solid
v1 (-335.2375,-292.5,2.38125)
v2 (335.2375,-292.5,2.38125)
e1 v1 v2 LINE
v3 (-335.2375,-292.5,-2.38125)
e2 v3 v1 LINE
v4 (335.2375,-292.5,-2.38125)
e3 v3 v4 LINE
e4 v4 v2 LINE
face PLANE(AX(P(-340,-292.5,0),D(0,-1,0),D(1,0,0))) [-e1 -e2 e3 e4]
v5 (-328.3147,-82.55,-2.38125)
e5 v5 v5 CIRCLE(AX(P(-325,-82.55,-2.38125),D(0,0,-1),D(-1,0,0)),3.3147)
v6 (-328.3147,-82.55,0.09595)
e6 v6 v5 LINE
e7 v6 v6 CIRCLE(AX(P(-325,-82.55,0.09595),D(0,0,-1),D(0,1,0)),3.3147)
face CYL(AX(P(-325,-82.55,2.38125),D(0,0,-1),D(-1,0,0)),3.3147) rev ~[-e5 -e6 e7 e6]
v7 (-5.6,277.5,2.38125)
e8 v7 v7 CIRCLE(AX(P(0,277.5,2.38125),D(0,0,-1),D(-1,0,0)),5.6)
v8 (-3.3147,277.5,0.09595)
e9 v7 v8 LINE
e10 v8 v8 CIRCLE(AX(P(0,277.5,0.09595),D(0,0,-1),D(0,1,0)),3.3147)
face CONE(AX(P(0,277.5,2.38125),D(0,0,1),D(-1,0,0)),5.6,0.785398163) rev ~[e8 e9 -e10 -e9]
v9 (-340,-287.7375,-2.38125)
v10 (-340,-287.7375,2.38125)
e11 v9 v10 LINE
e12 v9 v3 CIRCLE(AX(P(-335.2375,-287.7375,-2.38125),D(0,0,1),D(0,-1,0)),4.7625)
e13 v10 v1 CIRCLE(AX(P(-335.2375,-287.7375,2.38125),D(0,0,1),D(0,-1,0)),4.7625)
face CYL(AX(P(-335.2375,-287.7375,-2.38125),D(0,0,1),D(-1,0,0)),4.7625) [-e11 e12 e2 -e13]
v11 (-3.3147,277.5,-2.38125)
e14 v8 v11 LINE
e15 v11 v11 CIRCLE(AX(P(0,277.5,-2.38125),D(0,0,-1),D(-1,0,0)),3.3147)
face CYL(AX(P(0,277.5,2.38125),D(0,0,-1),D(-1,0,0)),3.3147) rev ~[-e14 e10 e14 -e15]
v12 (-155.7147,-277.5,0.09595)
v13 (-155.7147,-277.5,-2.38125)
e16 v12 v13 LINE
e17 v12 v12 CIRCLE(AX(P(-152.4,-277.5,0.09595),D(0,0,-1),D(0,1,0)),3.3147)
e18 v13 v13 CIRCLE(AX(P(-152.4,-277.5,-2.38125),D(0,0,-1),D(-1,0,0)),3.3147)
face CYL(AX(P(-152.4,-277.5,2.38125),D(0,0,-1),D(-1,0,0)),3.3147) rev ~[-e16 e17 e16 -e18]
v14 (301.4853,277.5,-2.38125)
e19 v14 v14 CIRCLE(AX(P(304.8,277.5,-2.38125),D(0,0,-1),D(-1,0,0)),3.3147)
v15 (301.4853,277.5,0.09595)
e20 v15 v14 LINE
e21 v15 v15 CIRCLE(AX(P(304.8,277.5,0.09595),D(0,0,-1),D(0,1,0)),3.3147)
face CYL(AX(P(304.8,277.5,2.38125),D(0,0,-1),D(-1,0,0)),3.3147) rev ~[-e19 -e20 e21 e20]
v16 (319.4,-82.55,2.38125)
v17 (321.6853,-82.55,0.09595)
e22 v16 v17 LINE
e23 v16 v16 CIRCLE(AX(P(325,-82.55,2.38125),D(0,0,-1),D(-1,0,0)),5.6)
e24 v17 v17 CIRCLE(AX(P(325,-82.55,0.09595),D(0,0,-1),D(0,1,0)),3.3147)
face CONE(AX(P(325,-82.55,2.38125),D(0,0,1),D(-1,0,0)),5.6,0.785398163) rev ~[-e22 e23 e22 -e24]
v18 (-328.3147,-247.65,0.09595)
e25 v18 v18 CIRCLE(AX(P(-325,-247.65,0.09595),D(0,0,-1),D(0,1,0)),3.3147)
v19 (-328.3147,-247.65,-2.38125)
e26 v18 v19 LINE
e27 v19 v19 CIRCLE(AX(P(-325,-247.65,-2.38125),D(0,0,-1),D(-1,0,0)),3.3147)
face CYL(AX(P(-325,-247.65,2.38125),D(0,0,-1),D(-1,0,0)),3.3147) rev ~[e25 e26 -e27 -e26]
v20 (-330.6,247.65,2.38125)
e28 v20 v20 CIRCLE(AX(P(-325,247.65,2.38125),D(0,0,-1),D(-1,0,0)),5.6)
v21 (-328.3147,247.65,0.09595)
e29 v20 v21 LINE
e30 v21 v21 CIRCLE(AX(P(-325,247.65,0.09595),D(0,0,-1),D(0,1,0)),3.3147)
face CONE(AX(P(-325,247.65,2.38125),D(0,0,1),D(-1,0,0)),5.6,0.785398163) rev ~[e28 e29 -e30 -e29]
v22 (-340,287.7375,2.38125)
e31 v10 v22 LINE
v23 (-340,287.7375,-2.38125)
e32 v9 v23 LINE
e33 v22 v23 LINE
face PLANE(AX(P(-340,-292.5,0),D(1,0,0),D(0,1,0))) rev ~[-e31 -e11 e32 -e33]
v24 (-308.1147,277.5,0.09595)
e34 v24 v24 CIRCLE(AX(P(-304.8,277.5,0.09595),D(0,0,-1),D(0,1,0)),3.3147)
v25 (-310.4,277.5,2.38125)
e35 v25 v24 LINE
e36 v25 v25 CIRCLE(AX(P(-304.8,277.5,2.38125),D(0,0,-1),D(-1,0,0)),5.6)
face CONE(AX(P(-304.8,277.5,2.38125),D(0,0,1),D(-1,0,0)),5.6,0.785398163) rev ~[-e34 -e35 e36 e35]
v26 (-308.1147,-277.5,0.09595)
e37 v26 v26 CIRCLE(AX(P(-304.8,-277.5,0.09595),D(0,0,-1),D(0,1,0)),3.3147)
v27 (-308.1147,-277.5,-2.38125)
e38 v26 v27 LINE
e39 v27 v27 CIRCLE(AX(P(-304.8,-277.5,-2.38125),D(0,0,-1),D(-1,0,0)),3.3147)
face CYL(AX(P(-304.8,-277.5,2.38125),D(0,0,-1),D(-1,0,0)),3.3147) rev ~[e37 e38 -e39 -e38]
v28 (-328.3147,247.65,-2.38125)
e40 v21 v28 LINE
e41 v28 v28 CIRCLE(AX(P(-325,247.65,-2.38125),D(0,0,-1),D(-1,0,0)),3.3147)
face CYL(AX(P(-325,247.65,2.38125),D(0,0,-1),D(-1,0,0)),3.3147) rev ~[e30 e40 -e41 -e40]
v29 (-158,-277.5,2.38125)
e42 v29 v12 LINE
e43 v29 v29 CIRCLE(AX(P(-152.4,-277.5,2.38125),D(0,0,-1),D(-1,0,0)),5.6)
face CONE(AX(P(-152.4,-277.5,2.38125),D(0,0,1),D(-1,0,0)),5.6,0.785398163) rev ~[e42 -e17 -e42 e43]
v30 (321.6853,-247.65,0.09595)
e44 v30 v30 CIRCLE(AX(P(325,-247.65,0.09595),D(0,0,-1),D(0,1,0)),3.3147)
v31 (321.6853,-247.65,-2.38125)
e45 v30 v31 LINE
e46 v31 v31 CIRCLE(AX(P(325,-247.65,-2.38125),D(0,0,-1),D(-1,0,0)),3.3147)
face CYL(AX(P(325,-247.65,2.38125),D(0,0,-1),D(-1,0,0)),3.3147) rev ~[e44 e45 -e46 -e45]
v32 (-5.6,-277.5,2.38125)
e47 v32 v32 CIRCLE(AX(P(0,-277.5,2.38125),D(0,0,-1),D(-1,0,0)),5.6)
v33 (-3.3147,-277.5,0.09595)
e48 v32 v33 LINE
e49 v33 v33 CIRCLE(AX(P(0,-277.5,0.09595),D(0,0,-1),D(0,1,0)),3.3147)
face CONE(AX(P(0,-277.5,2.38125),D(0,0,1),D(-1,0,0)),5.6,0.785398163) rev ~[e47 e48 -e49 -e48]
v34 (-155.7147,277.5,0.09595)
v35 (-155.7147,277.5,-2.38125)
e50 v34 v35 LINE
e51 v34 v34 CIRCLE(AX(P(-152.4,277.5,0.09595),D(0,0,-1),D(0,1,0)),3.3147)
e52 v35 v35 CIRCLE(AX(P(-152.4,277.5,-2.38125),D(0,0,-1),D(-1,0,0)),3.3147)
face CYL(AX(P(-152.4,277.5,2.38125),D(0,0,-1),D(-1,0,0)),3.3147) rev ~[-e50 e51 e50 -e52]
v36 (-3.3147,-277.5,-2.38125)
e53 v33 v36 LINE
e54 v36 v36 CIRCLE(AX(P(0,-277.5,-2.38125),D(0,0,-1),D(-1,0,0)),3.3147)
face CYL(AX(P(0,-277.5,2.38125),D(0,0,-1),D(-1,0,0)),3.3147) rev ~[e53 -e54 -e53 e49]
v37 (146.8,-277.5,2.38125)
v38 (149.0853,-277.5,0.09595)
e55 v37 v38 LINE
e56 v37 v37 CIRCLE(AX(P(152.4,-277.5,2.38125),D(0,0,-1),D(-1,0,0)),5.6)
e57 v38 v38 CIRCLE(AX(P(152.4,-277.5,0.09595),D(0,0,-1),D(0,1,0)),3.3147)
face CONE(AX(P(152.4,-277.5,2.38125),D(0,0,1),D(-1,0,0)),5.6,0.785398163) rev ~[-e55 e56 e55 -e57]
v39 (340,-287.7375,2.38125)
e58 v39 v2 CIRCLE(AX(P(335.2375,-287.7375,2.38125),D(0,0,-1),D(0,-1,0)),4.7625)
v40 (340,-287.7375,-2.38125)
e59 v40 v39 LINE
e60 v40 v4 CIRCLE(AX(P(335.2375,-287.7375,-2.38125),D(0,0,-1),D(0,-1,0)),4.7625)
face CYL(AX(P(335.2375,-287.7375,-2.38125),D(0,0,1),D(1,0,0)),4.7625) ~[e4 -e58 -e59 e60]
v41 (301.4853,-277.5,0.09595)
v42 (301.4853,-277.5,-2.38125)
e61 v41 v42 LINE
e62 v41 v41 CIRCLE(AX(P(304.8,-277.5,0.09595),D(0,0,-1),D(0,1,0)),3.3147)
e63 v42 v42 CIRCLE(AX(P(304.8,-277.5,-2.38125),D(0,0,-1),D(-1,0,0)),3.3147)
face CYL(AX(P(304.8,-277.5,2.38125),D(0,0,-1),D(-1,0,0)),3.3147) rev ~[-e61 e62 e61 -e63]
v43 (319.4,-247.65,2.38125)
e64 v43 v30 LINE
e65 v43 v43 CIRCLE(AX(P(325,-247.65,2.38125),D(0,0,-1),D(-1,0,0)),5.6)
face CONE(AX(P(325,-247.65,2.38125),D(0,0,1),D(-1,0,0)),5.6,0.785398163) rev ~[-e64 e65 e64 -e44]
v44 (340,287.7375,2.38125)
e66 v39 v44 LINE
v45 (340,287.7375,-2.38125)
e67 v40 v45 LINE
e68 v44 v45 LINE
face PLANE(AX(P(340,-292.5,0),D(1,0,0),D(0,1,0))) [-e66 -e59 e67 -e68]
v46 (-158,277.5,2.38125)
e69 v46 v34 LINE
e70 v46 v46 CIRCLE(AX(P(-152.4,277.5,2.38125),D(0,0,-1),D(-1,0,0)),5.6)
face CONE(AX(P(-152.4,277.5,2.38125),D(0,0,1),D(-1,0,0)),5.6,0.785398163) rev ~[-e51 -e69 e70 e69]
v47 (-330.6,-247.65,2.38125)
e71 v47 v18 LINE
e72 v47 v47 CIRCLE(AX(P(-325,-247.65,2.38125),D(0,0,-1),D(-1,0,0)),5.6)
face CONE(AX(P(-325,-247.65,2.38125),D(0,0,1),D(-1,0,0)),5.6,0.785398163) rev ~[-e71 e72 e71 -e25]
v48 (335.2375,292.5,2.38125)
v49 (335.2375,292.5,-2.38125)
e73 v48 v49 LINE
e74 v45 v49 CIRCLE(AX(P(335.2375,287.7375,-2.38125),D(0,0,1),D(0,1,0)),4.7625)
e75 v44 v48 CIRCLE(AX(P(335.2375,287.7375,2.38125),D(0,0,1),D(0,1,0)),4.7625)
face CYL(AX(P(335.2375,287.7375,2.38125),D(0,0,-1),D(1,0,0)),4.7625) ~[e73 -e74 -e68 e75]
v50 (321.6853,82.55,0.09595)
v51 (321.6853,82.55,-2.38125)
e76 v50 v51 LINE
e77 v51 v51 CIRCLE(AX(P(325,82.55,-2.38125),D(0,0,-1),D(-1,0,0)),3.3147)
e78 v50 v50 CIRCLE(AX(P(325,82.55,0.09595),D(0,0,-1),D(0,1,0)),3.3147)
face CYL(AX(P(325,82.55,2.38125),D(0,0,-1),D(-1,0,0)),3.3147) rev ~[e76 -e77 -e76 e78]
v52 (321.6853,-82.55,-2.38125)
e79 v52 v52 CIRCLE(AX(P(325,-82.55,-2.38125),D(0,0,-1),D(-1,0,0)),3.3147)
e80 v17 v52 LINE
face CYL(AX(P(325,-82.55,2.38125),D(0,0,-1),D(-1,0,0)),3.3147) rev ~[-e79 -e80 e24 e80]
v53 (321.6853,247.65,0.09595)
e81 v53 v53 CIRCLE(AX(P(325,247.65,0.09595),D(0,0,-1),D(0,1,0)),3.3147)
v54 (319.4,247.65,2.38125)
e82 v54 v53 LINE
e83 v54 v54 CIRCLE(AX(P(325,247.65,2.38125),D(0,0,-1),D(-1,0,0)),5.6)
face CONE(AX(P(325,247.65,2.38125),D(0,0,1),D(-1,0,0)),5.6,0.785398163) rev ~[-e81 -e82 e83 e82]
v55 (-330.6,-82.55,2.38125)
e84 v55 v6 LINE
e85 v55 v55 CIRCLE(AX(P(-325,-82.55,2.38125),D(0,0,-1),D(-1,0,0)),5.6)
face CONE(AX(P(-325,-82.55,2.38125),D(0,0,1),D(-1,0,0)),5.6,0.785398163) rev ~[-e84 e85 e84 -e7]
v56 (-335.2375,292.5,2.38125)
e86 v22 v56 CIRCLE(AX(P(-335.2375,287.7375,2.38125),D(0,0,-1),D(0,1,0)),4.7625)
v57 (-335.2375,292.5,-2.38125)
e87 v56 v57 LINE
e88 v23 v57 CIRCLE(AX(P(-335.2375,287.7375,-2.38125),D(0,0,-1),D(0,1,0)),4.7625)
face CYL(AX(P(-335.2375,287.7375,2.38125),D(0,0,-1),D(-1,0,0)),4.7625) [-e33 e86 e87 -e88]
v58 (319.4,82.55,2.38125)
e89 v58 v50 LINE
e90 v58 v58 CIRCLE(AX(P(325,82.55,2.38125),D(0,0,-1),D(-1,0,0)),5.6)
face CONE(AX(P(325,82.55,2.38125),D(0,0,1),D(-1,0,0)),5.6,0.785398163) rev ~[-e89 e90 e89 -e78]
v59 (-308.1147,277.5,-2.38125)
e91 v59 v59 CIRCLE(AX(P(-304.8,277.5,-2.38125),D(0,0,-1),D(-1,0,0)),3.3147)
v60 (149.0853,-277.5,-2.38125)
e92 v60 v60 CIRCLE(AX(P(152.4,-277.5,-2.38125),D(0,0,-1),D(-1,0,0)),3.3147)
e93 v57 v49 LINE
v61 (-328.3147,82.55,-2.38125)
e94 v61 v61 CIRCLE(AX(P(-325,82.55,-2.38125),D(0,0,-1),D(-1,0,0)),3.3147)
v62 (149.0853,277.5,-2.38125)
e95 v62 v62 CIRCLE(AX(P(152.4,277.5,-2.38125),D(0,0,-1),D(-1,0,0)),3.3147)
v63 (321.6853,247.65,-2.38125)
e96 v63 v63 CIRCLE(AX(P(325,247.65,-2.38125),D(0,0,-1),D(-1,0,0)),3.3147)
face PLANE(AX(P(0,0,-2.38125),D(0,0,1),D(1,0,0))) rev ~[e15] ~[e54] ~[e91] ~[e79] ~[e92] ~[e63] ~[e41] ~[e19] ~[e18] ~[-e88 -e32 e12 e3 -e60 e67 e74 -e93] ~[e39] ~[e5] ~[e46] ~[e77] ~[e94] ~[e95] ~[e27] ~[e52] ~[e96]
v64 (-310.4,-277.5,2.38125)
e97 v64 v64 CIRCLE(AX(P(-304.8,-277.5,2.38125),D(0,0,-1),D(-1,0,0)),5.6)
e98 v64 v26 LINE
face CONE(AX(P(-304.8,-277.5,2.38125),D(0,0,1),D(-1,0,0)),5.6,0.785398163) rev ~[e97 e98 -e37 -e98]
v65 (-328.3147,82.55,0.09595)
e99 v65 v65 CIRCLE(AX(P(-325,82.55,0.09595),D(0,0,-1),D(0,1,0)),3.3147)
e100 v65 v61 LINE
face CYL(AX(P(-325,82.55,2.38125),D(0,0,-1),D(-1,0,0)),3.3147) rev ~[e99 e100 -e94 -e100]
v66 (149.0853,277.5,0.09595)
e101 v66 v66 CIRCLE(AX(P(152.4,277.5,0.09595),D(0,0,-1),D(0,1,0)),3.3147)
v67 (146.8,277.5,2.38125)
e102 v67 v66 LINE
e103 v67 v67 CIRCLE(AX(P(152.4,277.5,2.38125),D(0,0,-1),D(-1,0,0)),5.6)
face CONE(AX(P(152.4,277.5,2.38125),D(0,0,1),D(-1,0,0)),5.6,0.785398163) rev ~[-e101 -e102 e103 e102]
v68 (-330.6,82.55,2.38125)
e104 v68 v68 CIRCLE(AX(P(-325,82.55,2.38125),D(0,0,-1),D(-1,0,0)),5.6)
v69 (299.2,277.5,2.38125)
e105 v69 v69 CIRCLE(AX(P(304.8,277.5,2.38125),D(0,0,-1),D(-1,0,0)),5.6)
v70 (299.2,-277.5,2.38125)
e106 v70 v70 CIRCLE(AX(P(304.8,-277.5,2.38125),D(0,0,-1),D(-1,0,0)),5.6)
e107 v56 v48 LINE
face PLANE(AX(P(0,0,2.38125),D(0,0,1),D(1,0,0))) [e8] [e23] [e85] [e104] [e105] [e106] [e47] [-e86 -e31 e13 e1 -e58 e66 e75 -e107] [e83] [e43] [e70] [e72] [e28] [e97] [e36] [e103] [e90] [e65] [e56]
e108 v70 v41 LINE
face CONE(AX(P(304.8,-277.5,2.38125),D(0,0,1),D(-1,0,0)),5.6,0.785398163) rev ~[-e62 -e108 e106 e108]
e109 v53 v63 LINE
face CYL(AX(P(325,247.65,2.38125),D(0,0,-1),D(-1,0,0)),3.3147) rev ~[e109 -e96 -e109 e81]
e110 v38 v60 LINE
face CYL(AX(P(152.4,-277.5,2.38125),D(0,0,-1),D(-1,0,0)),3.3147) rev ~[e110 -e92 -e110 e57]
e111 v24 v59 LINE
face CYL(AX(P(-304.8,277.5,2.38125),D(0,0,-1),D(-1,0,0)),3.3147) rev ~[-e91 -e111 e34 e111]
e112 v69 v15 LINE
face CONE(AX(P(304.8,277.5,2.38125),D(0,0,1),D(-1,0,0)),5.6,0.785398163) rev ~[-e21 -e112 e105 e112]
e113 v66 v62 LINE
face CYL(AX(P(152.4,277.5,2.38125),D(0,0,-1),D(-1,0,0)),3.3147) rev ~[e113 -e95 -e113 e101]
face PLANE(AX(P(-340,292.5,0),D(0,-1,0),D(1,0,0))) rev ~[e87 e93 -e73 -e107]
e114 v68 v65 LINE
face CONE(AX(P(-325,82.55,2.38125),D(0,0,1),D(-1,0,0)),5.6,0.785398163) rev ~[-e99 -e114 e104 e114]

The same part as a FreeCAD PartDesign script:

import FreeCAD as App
import Part
import Sketcher

V = App.Vector
Q = App.Units.Quantity


def edges_at(feature, points):
    """Names of the edges that pass closest to the given points."""
    edges = feature.Shape.Edges
    near = lambda p: min(range(len(edges)), key=lambda i: edges[i].distToShape(Part.Vertex(*p))[0])
    return sorted({f"Edge{near(p) + 1}" for p in points})

doc = App.newDocument("Part")
body = doc.addObject("PartDesign::Body", "Body")

sketch1 = body.newObject("Sketcher::SketchObject", "Sketch")
sketch1.AttachmentSupport = (doc.getObject("XY_Plane"), [""])
sketch1.MapMode = "FlatFace"
sketch1.addGeometry([
    Part.LineSegment(V(-340, 292.5, 0), V(-340, -292.5, 0)),
    Part.LineSegment(V(-340, -292.5, 0), V(340, -292.5, 0)),
    Part.LineSegment(V(340, -292.5, 0), V(340, 292.5, 0)),
    Part.LineSegment(V(340, 292.5, 0), V(-340, 292.5, 0)),
], False)
sketch1.addConstraint([
    Sketcher.Constraint("Coincident", 0, 2, 1, 1),
    Sketcher.Constraint("Coincident", 1, 2, 2, 1),
    Sketcher.Constraint("Coincident", 2, 2, 3, 1),
    Sketcher.Constraint("Coincident", 3, 2, 0, 1),
    Sketcher.Constraint("Vertical", 0),
    Sketcher.Constraint("Horizontal", 1),
    Sketcher.Constraint("Vertical", 2),
    Sketcher.Constraint("Horizontal", 3),
    Sketcher.Constraint("Symmetric", 0, 2, 2, 2, -1, 1),
    Sketcher.Constraint("DistanceX", 1, 1, 1, 2, Q("680 mm")),
    Sketcher.Constraint("DistanceY", 0, 2, 0, 1, Q("585 mm")),
])
pad1 = body.newObject("PartDesign::Pad", "Pad")
pad1.Profile = sketch1
pad1.Length = Q("0.1875 in")
pad1.Midplane = True
doc.recompute()

fillet = body.newObject("PartDesign::Fillet", "Fillet")
fillet.Base = (pad1, edges_at(pad1, [
    (340, 292.5, 0),
    (340, -292.5, 0),
    (-340, -292.5, 0),
    (-340, 292.5, 0),
]))
fillet.Radius = Q("0.1875 in")

sketch2 = body.newObject("Sketcher::SketchObject", "Sketch001")
sketch2.AttachmentSupport = (doc.getObject("XY_Plane"), [""])
sketch2.MapMode = "FlatFace"
sketch2.AttachmentOffset = App.Placement(V(0, 0, 0.09375 * 25.4), App.Rotation())
sketch2.addGeometry([
    Part.Circle(V(-325, 82.55, 0), V(0, 0, 1), 3.3147),
    Part.Circle(V(-325, 247.65, 0), V(0, 0, 1), 3.3147),
    Part.Circle(V(-325, -82.55, 0), V(0, 0, 1), 3.3147),
    Part.Circle(V(-325, -247.65, 0), V(0, 0, 1), 3.3147),
    Part.Circle(V(-304.8, -277.5, 0), V(0, 0, 1), 3.3147),
    Part.Circle(V(-152.4, -277.5, 0), V(0, 0, 1), 3.3147),
    Part.Circle(V(0, -277.5, 0), V(0, 0, 1), 3.3147),
    Part.Circle(V(152.4, -277.5, 0), V(0, 0, 1), 3.3147),
    Part.Circle(V(304.8, -277.5, 0), V(0, 0, 1), 3.3147),
    Part.Circle(V(325, -247.65, 0), V(0, 0, 1), 3.3147),
    Part.Circle(V(325, -82.55, 0), V(0, 0, 1), 3.3147),
    Part.Circle(V(325, 82.55, 0), V(0, 0, 1), 3.3147),
    Part.Circle(V(325, 247.65, 0), V(0, 0, 1), 3.3147),
    Part.Circle(V(304.8, 277.5, 0), V(0, 0, 1), 3.3147),
    Part.Circle(V(152.4, 277.5, 0), V(0, 0, 1), 3.3147),
    Part.Circle(V(0, 277.5, 0), V(0, 0, 1), 3.3147),
    Part.Circle(V(-152.4, 277.5, 0), V(0, 0, 1), 3.3147),
    Part.Circle(V(-304.8, 277.5, 0), V(0, 0, 1), 3.3147),
], False)
sketch2.addConstraint([
    Sketcher.Constraint("Equal", 0, 1),
    Sketcher.Constraint("Equal", 1, 2),
    Sketcher.Constraint("Equal", 2, 3),
    Sketcher.Constraint("Equal", 3, 4),
    Sketcher.Constraint("Equal", 4, 5),
    Sketcher.Constraint("Equal", 5, 6),
    Sketcher.Constraint("Equal", 6, 7),
    Sketcher.Constraint("Equal", 7, 8),
    Sketcher.Constraint("Equal", 8, 9),
    Sketcher.Constraint("Equal", 9, 10),
    Sketcher.Constraint("Equal", 10, 11),
    Sketcher.Constraint("Equal", 11, 12),
    Sketcher.Constraint("Equal", 12, 13),
    Sketcher.Constraint("Equal", 13, 14),
    Sketcher.Constraint("Equal", 14, 15),
    Sketcher.Constraint("Equal", 15, 16),
    Sketcher.Constraint("Equal", 16, 17),
    Sketcher.Constraint("Symmetric", 1, 3, 9, 3, -1, 1),
    Sketcher.Constraint("Symmetric", 0, 3, 10, 3, -1, 1),
    Sketcher.Constraint("Symmetric", 2, 3, 11, 3, -1, 1),
    Sketcher.Constraint("Symmetric", 3, 3, 12, 3, -1, 1),
    Sketcher.Constraint("Symmetric", 4, 3, 13, 3, -1, 1),
    Sketcher.Constraint("Symmetric", 5, 3, 14, 3, -1, 1),
    Sketcher.Constraint("Symmetric", 6, 3, 15, 3, -1, 1),
    Sketcher.Constraint("Symmetric", 7, 3, 16, 3, -1, 1),
    Sketcher.Constraint("Symmetric", 8, 3, 17, 3, -1, 1),
    Sketcher.Constraint("Symmetric", 5, 3, 7, 3, -2),
    Sketcher.Constraint("Symmetric", 4, 3, 8, 3, -2),
    Sketcher.Constraint("Symmetric", 3, 3, 9, 3, -2),
    Sketcher.Constraint("Symmetric", 2, 3, 10, 3, -2),
    Sketcher.Constraint("PointOnObject", 6, 3, -2),
    Sketcher.Constraint("Horizontal", 4, 3, 5, 3),
    Sketcher.Constraint("Horizontal", 5, 3, 6, 3),
    Sketcher.Constraint("Vertical", 0, 3, 1, 3),
    Sketcher.Constraint("Diameter", 0, Q("0.261 in")),
    Sketcher.Constraint("DistanceX", 4, 3, -1, 1, Q("12 in")),
    Sketcher.Constraint("DistanceX", 5, 3, -1, 1, Q("6 in")),
    Sketcher.Constraint("DistanceY", 2, 3, 1, 3, Q("13 in")),
    Sketcher.Constraint("DistanceY", 0, 3, 1, 3, Q("6.5 in")),
    Sketcher.Constraint("DistanceX", 0, 3, -1, 1, Q("325 mm")),
    Sketcher.Constraint("DistanceY", 4, 3, -1, 1, Q("277.5 mm")),
])
doc.recompute()
hole = body.newObject("PartDesign::Hole", "Hole")
hole.Profile = sketch2
hole.ThreadType = "None"
hole.Diameter = Q("0.261 in")
hole.DepthType = "ThroughAll"
hole.HoleCutType = "Countersink"
hole.HoleCutDiameter = 11.2
hole.HoleCutCountersinkAngle = 90

doc.recompute()
